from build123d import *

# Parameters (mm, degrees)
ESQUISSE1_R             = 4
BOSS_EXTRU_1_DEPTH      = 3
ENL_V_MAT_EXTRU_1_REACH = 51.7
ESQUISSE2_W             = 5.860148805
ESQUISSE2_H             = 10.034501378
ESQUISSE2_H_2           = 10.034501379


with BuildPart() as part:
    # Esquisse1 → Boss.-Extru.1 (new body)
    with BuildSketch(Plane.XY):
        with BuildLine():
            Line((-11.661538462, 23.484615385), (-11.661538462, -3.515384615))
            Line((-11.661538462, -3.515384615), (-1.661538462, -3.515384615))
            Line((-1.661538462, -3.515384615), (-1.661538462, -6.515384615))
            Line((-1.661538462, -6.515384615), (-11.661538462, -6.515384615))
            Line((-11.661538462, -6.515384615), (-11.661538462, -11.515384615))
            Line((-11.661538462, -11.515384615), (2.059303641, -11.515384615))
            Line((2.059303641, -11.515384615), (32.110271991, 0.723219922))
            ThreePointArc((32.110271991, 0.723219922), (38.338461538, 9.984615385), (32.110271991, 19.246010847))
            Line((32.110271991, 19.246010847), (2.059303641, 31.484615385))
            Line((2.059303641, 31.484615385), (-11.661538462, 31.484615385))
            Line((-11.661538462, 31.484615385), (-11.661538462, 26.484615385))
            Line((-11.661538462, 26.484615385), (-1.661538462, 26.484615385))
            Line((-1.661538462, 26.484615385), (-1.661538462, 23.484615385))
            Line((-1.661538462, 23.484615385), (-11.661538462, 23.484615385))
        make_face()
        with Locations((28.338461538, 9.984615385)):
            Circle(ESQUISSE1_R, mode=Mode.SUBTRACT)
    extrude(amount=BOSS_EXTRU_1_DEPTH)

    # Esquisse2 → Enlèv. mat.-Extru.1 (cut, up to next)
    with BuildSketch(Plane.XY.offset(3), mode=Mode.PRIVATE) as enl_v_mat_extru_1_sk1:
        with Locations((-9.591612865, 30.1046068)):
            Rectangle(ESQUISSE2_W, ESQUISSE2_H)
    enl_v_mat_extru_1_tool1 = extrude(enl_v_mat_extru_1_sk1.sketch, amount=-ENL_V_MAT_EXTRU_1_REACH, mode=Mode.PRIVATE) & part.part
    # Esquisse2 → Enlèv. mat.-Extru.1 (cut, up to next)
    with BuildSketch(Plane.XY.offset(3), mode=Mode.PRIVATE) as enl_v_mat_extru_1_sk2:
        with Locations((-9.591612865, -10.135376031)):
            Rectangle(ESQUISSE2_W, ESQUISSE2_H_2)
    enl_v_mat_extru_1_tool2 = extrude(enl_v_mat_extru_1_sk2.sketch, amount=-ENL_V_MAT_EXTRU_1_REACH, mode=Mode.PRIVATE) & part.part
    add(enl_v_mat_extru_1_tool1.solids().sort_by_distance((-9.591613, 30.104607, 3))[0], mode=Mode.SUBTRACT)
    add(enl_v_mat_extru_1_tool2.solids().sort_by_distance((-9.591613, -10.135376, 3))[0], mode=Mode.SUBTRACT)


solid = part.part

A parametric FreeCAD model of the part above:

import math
import FreeCAD as App
import Part
import Sketcher

V = App.Vector


def add_polygon(sketch, points):
    """Adds a closed chain of lines whose ends are joined by coincident constraints."""
    first, n = sketch.GeometryCount, len(points)
    for a, b in zip(points, points[1:] + points[:1]):
        sketch.addGeometry(Part.LineSegment(App.Vector(*a, 0), App.Vector(*b, 0)), False)
    for i in range(n):
        sketch.addConstraint(Sketcher.Constraint("Coincident", first + i, 2, first + (i + 1) % n, 1))

doc = App.newDocument("Part")
body = doc.addObject("PartDesign::Body", "Body")

sketch1 = body.newObject("Sketcher::SketchObject", "Sketch")
sketch1.AttachmentSupport = (doc.getObject("XY_Plane"), [""])
sketch1.MapMode = "FlatFace"
sketch1.addGeometry(Part.LineSegment(V(-11.7, 23.5, 0), V(-11.7, -3.5, 0)), False)
sketch1.addGeometry(Part.LineSegment(V(-11.7, -3.5, 0), V(-1.7, -3.5, 0)), False)
sketch1.addGeometry(Part.LineSegment(V(-1.7, -3.5, 0), V(-1.7, -6.5, 0)), False)
sketch1.addGeometry(Part.LineSegment(V(-1.7, -6.5, 0), V(-11.7, -6.5, 0)), False)
sketch1.addGeometry(Part.LineSegment(V(-11.7, -6.5, 0), V(-11.7, -11.5, 0)), False)
sketch1.addGeometry(Part.LineSegment(V(-11.7, -11.5, 0), V(2.1, -11.5, 0)), False)
sketch1.addGeometry(Part.LineSegment(V(2.1, -11.5, 0), V(32.1, 0.7, 0)), False)
sketch1.addGeometry(Part.ArcOfCircle(Part.Circle(V(28.3, 10, 0), V(0, 0, 1), 10), math.radians(-68), math.radians(68)), False)
sketch1.addGeometry(Part.LineSegment(V(32.1, 19.2, 0), V(2.1, 31.5, 0)), False)
sketch1.addGeometry(Part.LineSegment(V(2.1, 31.5, 0), V(-11.7, 31.5, 0)), False)
sketch1.addGeometry(Part.LineSegment(V(-11.7, 31.5, 0), V(-11.7, 26.5, 0)), False)
sketch1.addGeometry(Part.LineSegment(V(-11.7, 26.5, 0), V(-1.7, 26.5, 0)), False)
sketch1.addGeometry(Part.LineSegment(V(-1.7, 26.5, 0), V(-1.7, 23.5, 0)), False)
sketch1.addGeometry(Part.LineSegment(V(-1.7, 23.5, 0), V(-11.7, 23.5, 0)), False)
sketch1.addGeometry(Part.Circle(V(28.3, 10, 0), V(0, 0, 1), 4), False)
sketch1.addConstraint(Sketcher.Constraint("Coincident", 0, 2, 1, 1))
sketch1.addConstraint(Sketcher.Constraint("Coincident", 1, 2, 2, 1))
sketch1.addConstraint(Sketcher.Constraint("Coincident", 2, 2, 3, 1))
sketch1.addConstraint(Sketcher.Constraint("Coincident", 3, 2, 4, 1))
sketch1.addConstraint(Sketcher.Constraint("Coincident", 4, 2, 5, 1))
sketch1.addConstraint(Sketcher.Constraint("Coincident", 5, 2, 6, 1))
sketch1.addConstraint(Sketcher.Constraint("Tangent", 6, 2, 7, 1))
sketch1.addConstraint(Sketcher.Constraint("Tangent", 7, 2, 8, 1))
sketch1.addConstraint(Sketcher.Constraint("Coincident", 8, 2, 9, 1))
sketch1.addConstraint(Sketcher.Constraint("Coincident", 9, 2, 10, 1))
sketch1.addConstraint(Sketcher.Constraint("Coincident", 10, 2, 11, 1))
sketch1.addConstraint(Sketcher.Constraint("Coincident", 11, 2, 12, 1))
sketch1.addConstraint(Sketcher.Constraint("Coincident", 12, 2, 13, 1))
sketch1.addConstraint(Sketcher.Constraint("Coincident", 13, 2, 0, 1))
sketch1.addConstraint(Sketcher.Constraint("Vertical", 0))
sketch1.addConstraint(Sketcher.Constraint("Horizontal", 1))
sketch1.addConstraint(Sketcher.Constraint("Vertical", 2))
sketch1.addConstraint(Sketcher.Constraint("Horizontal", 3))
sketch1.addConstraint(Sketcher.Constraint("Vertical", 4))
sketch1.addConstraint(Sketcher.Constraint("Horizontal", 5))
sketch1.addConstraint(Sketcher.Constraint("Horizontal", 9))
sketch1.addConstraint(Sketcher.Constraint("Vertical", 10))
sketch1.addConstraint(Sketcher.Constraint("Horizontal", 11))
sketch1.addConstraint(Sketcher.Constraint("Vertical", 12))
sketch1.addConstraint(Sketcher.Constraint("Horizontal", 13))
sketch1.addConstraint(Sketcher.Constraint("Coincident", 14, 3, 7, 3))
sketch1.addConstraint(Sketcher.Constraint("Vertical", 0, 2, 3, 2))
sketch1.addConstraint(Sketcher.Constraint("Vertical", 6, 2, 7, 2))
sketch1.addConstraint(Sketcher.Constraint("Vertical", 5, 2, 8, 2))
sketch1.addConstraint(Sketcher.Constraint("Vertical", 4, 2, 9, 2))
sketch1.addConstraint(Sketcher.Constraint("Vertical", 2, 2, 11, 2))
sketch1.addConstraint(Sketcher.Constraint("Equal", 4, 10))
sketch1.addConstraint(Sketcher.Constraint("Equal", 2, 12))
sketch1.addConstraint(Sketcher.Constraint("Diameter", 14, 8.0))
sketch1.addConstraint(Sketcher.Constraint("Radius", 7, 10.0))
sketch1.addConstraint(Sketcher.Constraint("DistanceX", 1, 1, 1, 2, 10.0))
sketch1.addConstraint(Sketcher.Constraint("DistanceY", 0, 2, 0, 1, 27.0))
sketch1.addConstraint(Sketcher.Constraint("DistanceY", 2, 2, 2, 1, 3.0))
sketch1.addConstraint(Sketcher.Constraint("DistanceY", 4, 2, 4, 1, 5.0))
sketch1.addConstraint(Sketcher.Constraint("DistanceX", 0, 2, 7, 3, 40.0))
sketch1.addConstraint(Sketcher.Constraint("Distance", 6, 32.44756))
sketch1.addConstraint(Sketcher.Constraint("DistanceX", -1, 1, 7, 3, 28.338462))
sketch1.addConstraint(Sketcher.Constraint("DistanceY", -1, 1, 6, 2, 0.72322))
pad1 = body.newObject("PartDesign::Pad", "Pad")
pad1.Profile = sketch1
pad1.Length = 3

sketch2 = body.newObject("Sketcher::SketchObject", "Sketch001")
sketch2.AttachmentSupport = (doc.getObject("XY_Plane"), [""])
sketch2.MapMode = "FlatFace"
sketch2.AttachmentOffset = App.Placement(V(0, 0, 3), App.Rotation())
add_polygon(sketch2, [(-13, 35), (-13, 25), (-7, 25), (-7, 35)])
sketch2.addConstraint(Sketcher.Constraint("Vertical", 0))
sketch2.addConstraint(Sketcher.Constraint("Horizontal", 1))
sketch2.addConstraint(Sketcher.Constraint("Vertical", 2))
sketch2.addConstraint(Sketcher.Constraint("Horizontal", 3))
sketch2.addConstraint(Sketcher.Constraint("DistanceY", 0, 2, 0, 1, 10.034501))
sketch2.addConstraint(Sketcher.Constraint("DistanceX", 1, 1, 1, 2, 5.860149))
sketch2.addConstraint(Sketcher.Constraint("DistanceX", 1, 2, -1, 1, 6.661538))
sketch2.addConstraint(Sketcher.Constraint("DistanceY", -1, 1, 0, 2, 25.087356))
pocket1 = body.newObject("PartDesign::Pocket", "Pocket")
pocket1.Profile = sketch2
pocket1.Type = "UpToFirst"

sketch3 = body.newObject("Sketcher::SketchObject", "Sketch002")
sketch3.AttachmentSupport = (doc.getObject("XY_Plane"), [""])
sketch3.MapMode = "FlatFace"
sketch3.AttachmentOffset = App.Placement(V(0, 0, 3), App.Rotation())
add_polygon(sketch3, [(-13, -5), (-13, -15), (-7, -15), (-7, -5)])
sketch3.addConstraint(Sketcher.Constraint("Vertical", 0))
sketch3.addConstraint(Sketcher.Constraint("Horizontal", 1))
sketch3.addConstraint(Sketcher.Constraint("Vertical", 2))
sketch3.addConstraint(Sketcher.Constraint("Horizontal", 3))
sketch3.addConstraint(Sketcher.Constraint("DistanceY", 0, 2, 0, 1, 10.034501))
sketch3.addConstraint(Sketcher.Constraint("DistanceX", 1, 1, 1, 2, 5.860149))
sketch3.addConstraint(Sketcher.Constraint("DistanceX", 1, 2, -1, 1, 6.661538))
sketch3.addConstraint(Sketcher.Constraint("DistanceY", 0, 2, -1, 1, 15.152627))
pocket2 = body.newObject("PartDesign::Pocket", "Pocket001")
pocket2.Profile = sketch3
pocket2.Type = "UpToFirst"

doc.recompute()
